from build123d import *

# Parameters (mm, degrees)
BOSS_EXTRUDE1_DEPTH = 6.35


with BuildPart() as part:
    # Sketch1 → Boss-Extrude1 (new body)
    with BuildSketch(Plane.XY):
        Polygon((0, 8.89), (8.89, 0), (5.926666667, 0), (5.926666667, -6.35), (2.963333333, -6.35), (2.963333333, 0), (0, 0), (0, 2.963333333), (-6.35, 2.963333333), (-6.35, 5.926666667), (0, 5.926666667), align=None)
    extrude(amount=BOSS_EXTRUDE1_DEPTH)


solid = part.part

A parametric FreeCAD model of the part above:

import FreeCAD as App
import Part
import Sketcher

V = App.Vector
Q = App.Units.Quantity


def add_polygon(sketch, points):
    """Adds a closed chain of lines whose ends are joined by coincident constraints."""
    first, n = sketch.GeometryCount, len(points)
    for a, b in zip(points, points[1:] + points[:1]):
        sketch.addGeometry(Part.LineSegment(App.Vector(*a, 0), App.Vector(*b, 0)), False)
    for i in range(n):
        sketch.addConstraint(Sketcher.Constraint("Coincident", first + i, 2, first + (i + 1) % n, 1))

doc = App.newDocument("Part")
body = doc.addObject("PartDesign::Body", "Body")

# Sketch on XY plane
sketch1 = doc.addObject("Sketcher::SketchObject", "Sketch")
body.addObject(sketch1)
sketch1.AttachmentSupport = (doc.XY_Plane, [""])
sketch1.MapMode = "FlatFace"
add_polygon(sketch1, [(8.89, 0), (0, 8.89), (0, 5.926667), (-6.35, 5.926667), (-6.35, 2.963333), (0, 2.963333), (0, 0), (2.963333, 0), (2.963333, -6.35), (5.926667, -6.35), (5.926667, 0)])  # lines 0-10
sketch1.addConstraint([
    Sketcher.Constraint("Vertical", 1),
    Sketcher.Constraint("Horizontal", 2),
    Sketcher.Constraint("Vertical", 3),
    Sketcher.Constraint("Horizontal", 4),
    Sketcher.Constraint("Vertical", 5),
    Sketcher.Constraint("Horizontal", 6),
    Sketcher.Constraint("Vertical", 7),
    Sketcher.Constraint("Horizontal", 8),
    Sketcher.Constraint("Vertical", 9),
    Sketcher.Constraint("Horizontal", 10),
    Sketcher.Constraint("Coincident", 5, 2, -1, 1),
    Sketcher.Constraint("PointOnObject", 0, 2, -2),
    Sketcher.Constraint("PointOnObject", 9, 2, -1),
    Sketcher.Constraint("Equal", 6, 8),
    Sketcher.Constraint("Equal", 8, 10),
    Sketcher.Constraint("Equal", 10, 1),
    Sketcher.Constraint("Equal", 1, 3),
    Sketcher.Constraint("Equal", 3, 5),
    Sketcher.Constraint("Equal", 4, 7),
    Sketcher.Constraint("DistanceX", 2, 2, 2, 1, Q("0.25 in")),
    Sketcher.Constraint("DistanceY", -1, 1, 0, 2, Q("0.35 in")),
])
pad1 = doc.addObject("PartDesign::Pad", "Pad")
body.addObject(pad1)
pad1.Profile = sketch1
pad1.Length = Q("0.25 in")

doc.recompute()
